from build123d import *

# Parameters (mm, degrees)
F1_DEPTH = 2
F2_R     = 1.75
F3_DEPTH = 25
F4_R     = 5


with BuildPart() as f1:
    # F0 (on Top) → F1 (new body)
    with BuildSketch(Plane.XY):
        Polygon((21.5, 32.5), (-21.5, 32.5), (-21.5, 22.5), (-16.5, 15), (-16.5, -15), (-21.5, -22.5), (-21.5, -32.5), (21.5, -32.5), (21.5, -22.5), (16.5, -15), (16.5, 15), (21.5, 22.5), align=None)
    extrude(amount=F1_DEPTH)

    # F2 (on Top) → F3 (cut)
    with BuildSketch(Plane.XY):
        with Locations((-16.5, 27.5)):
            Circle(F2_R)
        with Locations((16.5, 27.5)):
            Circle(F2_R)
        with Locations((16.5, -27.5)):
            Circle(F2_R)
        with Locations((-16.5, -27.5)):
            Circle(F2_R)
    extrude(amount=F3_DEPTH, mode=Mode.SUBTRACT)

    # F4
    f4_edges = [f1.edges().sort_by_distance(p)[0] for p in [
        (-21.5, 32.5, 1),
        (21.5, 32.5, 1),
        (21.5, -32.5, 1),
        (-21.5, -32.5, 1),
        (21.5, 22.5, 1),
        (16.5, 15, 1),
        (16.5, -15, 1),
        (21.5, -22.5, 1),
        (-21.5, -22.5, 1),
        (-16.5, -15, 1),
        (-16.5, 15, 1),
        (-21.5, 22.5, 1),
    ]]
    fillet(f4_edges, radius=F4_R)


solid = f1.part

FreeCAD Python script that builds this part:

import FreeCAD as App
import Part
import Sketcher
Q = App.Units.Quantity


def edges_at(feature, points):
    """Names of the edges that pass closest to the given points."""
    edges = feature.Shape.Edges
    near = lambda p: min(range(len(edges)), key=lambda i: edges[i].distToShape(Part.Vertex(*p))[0])
    return sorted({f"Edge{near(p) + 1}" for p in points})


def add_polygon(sketch, points):
    """Adds a closed chain of lines whose ends are joined by coincident constraints."""
    first, n = sketch.GeometryCount, len(points)
    for a, b in zip(points, points[1:] + points[:1]):
        sketch.addGeometry(Part.LineSegment(App.Vector(*a, 0), App.Vector(*b, 0)), False)
    for i in range(n):
        sketch.addConstraint(Sketcher.Constraint("Coincident", first + i, 2, first + (i + 1) % n, 1))

doc = App.newDocument("Part")
body = doc.addObject("PartDesign::Body", "Body")

# Sketch on XY plane
sketch1 = body.newObject("Sketcher::SketchObject", "Sketch")
sketch1.AttachmentSupport = (doc.getObject("XY_Plane"), [""])
sketch1.MapMode = "FlatFace"
add_polygon(sketch1, [(21.5, 32.5), (-21.5, 32.5), (-21.5, 22.5), (-16.5, 15), (-16.5, -15), (-21.5, -22.5), (-21.5, -32.5), (21.5, -32.5), (21.5, -22.5), (16.5, -15), (16.5, 15), (21.5, 22.5)])  # lines 0-11
sketch1.addConstraint(Sketcher.Constraint("Horizontal", 0))
sketch1.addConstraint(Sketcher.Constraint("Vertical", 1))
sketch1.addConstraint(Sketcher.Constraint("Vertical", 3))
sketch1.addConstraint(Sketcher.Constraint("Vertical", 5))
sketch1.addConstraint(Sketcher.Constraint("Horizontal", 6))
sketch1.addConstraint(Sketcher.Constraint("Vertical", 7))
sketch1.addConstraint(Sketcher.Constraint("Vertical", 9))
sketch1.addConstraint(Sketcher.Constraint("Vertical", 11))
sketch1.addConstraint(Sketcher.Constraint("Symmetric", 0, 2, 6, 2, -1, 1))
sketch1.addConstraint(Sketcher.Constraint("Symmetric", 2, 2, 8, 2, -1, 1))
sketch1.addConstraint(Sketcher.Constraint("Symmetric", 4, 2, 10, 2, -1, 1))
sketch1.addConstraint(Sketcher.Constraint("Symmetric", 4, 2, 7, 2, -2))
sketch1.addConstraint(Sketcher.Constraint("Parallel", 2, 8))
sketch1.addConstraint(Sketcher.Constraint("Parallel", 4, 10))
sketch1.addConstraint(Sketcher.Constraint("Horizontal", 3, 2, 8, 2))
sketch1.addConstraint(Sketcher.Constraint("DistanceX", 0, 2, 0, 1, Q("43 mm")))
sketch1.addConstraint(Sketcher.Constraint("DistanceY", 1, 2, 1, 1, Q("10 mm")))
sketch1.addConstraint(Sketcher.Constraint("DistanceY", 3, 2, 3, 1, Q("30 mm")))
sketch1.addConstraint(Sketcher.Constraint("DistanceX", 1, 2, 2, 2, Q("5 mm")))
sketch1.addConstraint(Sketcher.Constraint("DistanceY", 4, 2, 1, 2, Q("45 mm")))
pad1 = body.newObject("PartDesign::Pad", "Pad")
pad1.Profile = sketch1
pad1.Length = 2

# Sketch on XY plane
sketch2 = body.newObject("Sketcher::SketchObject", "Sketch001")
sketch2.AttachmentSupport = (doc.getObject("XY_Plane"), [""])
sketch2.MapMode = "FlatFace"
sketch2.addGeometry(Part.Circle(App.Vector(-16.5, 27.5, 0), App.Vector(0, 0, 1), 1.75), False)
sketch2.addGeometry(Part.Circle(App.Vector(16.5, 27.5, 0), App.Vector(0, 0, 1), 1.75), False)
sketch2.addGeometry(Part.Circle(App.Vector(16.5, -27.5, 0), App.Vector(0, 0, 1), 1.75), False)
sketch2.addGeometry(Part.Circle(App.Vector(-16.5, -27.5, 0), App.Vector(0, 0, 1), 1.75), False)
sketch2.addConstraint(Sketcher.Constraint("Equal", 0, 1))
sketch2.addConstraint(Sketcher.Constraint("Equal", 1, 2))
sketch2.addConstraint(Sketcher.Constraint("Equal", 2, 3))
sketch2.addConstraint(Sketcher.Constraint("Symmetric", 0, 3, 2, 3, -1, 1))
sketch2.addConstraint(Sketcher.Constraint("Symmetric", 1, 3, 3, 3, -1, 1))
sketch2.addConstraint(Sketcher.Constraint("Symmetric", 0, 3, 1, 3, -2))
sketch2.addConstraint(Sketcher.Constraint("Diameter", 0, Q("3.5 mm")))
sketch2.addConstraint(Sketcher.Constraint("DistanceX", 0, 3, 1, 3, Q("33 mm")))
sketch2.addConstraint(Sketcher.Constraint("DistanceY", 2, 3, 1, 3, Q("55 mm")))
pocket1 = body.newObject("PartDesign::Pocket", "Pocket")
pocket1.Profile = sketch2
pocket1.Length = 25
pocket1.Reversed = True
doc.recompute()

fillet = body.newObject("PartDesign::Fillet", "Fillet")
fillet.Base = (pocket1, edges_at(pocket1, [
    (-21.5, 32.5, 1),
    (21.5, 32.5, 1),
    (21.5, -32.5, 1),
    (-21.5, -32.5, 1),
    (21.5, 22.5, 1),
    (16.5, 15, 1),
    (16.5, -15, 1),
    (21.5, -22.5, 1),
    (-21.5, -22.5, 1),
    (-16.5, -15, 1),
    (-16.5, 15, 1),
    (-21.5, 22.5, 1),
]))
fillet.Radius = 5

doc.recompute()
